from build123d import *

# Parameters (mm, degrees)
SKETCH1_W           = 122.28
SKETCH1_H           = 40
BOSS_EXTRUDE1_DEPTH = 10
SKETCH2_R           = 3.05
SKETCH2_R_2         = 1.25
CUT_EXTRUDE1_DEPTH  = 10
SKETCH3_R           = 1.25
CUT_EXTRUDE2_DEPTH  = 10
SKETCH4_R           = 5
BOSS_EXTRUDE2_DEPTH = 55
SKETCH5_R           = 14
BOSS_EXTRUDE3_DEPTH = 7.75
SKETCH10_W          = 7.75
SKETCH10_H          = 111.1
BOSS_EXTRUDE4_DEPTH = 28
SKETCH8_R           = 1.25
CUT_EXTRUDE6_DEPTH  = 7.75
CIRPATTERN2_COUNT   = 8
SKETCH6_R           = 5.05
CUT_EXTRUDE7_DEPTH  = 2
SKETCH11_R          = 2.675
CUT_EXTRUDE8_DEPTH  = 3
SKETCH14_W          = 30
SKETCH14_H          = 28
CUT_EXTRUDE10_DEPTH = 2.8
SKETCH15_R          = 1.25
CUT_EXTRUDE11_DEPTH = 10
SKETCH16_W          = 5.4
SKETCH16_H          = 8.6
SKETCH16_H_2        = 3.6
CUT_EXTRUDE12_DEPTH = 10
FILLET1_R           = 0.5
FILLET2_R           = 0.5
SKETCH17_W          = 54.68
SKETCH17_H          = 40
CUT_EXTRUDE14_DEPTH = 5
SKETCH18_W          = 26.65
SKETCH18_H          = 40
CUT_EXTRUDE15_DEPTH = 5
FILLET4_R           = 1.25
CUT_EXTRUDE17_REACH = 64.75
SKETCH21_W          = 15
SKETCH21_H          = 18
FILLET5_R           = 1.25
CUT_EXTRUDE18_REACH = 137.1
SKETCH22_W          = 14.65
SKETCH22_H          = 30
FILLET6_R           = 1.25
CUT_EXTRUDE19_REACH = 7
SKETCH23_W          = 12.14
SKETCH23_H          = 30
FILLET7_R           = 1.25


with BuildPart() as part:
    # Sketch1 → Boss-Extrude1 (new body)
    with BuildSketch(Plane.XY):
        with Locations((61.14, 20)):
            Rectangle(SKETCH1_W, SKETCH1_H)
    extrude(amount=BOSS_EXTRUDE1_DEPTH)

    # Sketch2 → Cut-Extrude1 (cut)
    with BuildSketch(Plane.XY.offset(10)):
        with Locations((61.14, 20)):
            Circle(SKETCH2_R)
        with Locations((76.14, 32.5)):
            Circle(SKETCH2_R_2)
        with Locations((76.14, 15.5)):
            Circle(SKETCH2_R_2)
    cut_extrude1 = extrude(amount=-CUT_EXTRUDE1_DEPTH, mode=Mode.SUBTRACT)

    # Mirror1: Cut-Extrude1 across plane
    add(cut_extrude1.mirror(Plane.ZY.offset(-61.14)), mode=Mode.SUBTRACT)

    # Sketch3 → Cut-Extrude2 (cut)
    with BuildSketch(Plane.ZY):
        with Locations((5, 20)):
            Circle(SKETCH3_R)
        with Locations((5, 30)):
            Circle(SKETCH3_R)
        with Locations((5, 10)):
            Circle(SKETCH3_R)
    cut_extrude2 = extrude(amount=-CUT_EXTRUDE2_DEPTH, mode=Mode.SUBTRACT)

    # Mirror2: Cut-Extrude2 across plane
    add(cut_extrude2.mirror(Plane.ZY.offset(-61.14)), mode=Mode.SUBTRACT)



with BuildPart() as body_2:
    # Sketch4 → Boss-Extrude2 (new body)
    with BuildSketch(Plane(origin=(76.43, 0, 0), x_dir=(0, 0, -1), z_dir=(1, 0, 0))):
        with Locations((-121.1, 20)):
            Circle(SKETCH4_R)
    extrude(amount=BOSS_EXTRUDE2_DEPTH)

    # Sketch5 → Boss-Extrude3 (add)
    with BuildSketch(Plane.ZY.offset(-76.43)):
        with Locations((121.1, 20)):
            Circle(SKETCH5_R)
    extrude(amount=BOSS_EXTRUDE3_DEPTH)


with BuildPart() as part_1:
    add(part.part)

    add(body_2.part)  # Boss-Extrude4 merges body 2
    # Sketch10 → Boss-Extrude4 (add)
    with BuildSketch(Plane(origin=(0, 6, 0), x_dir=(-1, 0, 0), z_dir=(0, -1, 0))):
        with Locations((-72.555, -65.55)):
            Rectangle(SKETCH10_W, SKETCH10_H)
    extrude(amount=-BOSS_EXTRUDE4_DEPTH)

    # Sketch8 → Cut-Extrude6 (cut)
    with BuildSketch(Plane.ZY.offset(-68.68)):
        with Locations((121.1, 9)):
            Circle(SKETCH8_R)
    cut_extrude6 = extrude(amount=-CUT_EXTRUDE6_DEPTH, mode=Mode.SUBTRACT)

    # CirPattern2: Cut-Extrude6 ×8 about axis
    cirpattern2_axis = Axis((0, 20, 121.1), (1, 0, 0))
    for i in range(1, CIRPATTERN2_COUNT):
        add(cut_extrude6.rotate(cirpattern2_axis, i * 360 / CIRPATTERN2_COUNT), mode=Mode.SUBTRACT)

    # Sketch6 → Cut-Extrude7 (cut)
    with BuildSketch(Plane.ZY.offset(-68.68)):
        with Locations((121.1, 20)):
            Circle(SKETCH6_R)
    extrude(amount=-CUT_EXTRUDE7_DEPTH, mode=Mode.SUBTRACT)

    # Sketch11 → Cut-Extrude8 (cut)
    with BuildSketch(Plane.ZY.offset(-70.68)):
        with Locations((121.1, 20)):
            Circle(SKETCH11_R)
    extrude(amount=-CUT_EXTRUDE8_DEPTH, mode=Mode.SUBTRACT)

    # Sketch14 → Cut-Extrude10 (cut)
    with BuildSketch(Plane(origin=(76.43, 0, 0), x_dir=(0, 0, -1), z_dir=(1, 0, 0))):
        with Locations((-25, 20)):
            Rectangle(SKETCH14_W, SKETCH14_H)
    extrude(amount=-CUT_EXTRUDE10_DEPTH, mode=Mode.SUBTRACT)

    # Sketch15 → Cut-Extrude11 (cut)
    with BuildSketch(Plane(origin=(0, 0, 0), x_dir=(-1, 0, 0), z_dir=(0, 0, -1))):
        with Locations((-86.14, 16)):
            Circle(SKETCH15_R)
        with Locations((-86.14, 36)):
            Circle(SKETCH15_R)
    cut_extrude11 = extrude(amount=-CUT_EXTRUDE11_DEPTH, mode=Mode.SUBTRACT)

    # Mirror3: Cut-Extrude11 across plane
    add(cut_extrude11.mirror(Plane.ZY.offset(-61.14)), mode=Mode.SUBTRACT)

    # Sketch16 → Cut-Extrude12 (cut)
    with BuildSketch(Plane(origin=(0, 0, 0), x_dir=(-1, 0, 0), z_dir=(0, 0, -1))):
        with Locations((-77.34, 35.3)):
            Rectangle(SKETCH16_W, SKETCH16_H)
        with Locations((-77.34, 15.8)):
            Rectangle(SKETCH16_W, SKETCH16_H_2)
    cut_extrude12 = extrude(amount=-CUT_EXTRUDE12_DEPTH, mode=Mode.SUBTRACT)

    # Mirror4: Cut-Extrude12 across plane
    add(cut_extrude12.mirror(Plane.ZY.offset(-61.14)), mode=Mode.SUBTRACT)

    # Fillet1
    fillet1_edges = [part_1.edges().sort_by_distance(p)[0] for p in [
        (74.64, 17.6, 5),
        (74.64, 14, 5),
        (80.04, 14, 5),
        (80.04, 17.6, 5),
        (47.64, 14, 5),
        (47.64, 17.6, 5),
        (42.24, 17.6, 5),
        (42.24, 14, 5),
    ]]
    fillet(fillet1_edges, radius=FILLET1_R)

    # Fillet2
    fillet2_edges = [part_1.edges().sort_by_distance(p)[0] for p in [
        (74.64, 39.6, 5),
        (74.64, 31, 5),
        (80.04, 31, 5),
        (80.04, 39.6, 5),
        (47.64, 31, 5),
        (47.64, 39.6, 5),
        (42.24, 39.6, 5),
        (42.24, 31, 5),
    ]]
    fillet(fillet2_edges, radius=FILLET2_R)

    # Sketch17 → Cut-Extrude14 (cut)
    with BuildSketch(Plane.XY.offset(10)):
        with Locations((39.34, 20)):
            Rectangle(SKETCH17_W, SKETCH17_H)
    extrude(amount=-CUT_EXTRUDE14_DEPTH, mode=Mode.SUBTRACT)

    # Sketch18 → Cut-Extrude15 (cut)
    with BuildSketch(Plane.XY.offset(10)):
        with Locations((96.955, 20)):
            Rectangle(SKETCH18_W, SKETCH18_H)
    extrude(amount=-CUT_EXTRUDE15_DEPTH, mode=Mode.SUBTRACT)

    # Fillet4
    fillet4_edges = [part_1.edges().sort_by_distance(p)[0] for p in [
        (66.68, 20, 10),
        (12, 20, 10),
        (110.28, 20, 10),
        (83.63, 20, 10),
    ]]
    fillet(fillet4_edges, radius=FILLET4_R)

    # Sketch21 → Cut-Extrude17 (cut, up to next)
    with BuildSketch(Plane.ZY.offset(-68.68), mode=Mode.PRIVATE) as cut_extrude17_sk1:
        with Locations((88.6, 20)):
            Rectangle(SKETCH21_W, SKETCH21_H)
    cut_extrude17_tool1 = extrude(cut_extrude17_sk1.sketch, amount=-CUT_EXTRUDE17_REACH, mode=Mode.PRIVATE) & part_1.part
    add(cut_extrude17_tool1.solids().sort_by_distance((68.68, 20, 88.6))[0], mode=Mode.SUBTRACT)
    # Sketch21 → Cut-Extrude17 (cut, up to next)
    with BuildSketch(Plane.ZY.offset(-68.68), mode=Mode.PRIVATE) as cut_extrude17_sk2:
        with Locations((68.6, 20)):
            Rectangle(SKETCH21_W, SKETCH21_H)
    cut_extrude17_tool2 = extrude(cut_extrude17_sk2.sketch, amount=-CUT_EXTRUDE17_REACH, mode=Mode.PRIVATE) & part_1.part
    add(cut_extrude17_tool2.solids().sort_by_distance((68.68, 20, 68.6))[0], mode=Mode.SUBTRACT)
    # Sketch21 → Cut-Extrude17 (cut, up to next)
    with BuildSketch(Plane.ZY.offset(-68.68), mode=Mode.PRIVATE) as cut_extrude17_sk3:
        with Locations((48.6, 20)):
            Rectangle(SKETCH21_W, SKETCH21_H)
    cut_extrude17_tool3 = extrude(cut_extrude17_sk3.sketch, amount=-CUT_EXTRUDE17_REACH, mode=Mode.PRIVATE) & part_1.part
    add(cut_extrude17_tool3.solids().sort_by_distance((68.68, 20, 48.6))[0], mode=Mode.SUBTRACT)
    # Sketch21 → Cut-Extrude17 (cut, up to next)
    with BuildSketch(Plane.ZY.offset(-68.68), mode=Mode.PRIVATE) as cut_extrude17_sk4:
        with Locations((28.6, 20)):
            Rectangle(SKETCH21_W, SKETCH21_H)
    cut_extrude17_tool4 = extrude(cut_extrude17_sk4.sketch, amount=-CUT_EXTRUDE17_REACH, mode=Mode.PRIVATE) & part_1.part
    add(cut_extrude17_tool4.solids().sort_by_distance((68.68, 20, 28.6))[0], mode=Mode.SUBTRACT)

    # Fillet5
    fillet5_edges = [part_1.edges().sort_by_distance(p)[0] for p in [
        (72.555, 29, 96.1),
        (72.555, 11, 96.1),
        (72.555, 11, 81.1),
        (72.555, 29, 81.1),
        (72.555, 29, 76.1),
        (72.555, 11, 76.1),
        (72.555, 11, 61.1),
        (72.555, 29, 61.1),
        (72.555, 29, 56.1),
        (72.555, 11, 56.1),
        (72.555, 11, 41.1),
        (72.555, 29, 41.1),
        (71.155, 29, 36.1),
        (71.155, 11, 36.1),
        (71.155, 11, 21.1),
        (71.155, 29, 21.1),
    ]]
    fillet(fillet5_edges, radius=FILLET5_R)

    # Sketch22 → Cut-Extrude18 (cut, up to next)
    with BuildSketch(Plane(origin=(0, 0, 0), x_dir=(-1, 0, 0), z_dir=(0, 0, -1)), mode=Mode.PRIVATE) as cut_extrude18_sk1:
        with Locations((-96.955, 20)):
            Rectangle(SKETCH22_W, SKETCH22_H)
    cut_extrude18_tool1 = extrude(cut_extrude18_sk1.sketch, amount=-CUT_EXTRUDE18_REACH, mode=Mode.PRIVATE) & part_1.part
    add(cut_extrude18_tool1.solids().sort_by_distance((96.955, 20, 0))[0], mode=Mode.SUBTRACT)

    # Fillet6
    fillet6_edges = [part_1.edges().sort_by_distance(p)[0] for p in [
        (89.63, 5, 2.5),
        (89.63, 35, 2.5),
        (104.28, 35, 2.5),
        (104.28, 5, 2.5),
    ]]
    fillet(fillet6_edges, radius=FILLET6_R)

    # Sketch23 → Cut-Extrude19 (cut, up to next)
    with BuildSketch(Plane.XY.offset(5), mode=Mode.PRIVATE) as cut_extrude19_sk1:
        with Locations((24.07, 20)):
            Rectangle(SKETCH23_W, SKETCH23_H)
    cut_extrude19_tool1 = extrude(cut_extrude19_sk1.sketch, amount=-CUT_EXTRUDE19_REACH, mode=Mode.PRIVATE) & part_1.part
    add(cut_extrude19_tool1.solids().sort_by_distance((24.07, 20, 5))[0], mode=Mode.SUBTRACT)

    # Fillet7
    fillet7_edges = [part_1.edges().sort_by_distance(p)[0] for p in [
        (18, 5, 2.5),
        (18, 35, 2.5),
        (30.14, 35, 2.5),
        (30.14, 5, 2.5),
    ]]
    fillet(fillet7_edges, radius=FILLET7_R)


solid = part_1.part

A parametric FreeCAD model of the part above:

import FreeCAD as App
import Part
import Sketcher

V = App.Vector
Q = App.Units.Quantity


def edges_at(feature, points):
    """Names of the edges that pass closest to the given points."""
    edges = feature.Shape.Edges
    near = lambda p: min(range(len(edges)), key=lambda i: edges[i].distToShape(Part.Vertex(*p))[0])
    return sorted({f"Edge{near(p) + 1}" for p in points})

doc = App.newDocument("Part")
body = doc.addObject("PartDesign::Body", "Body")

sketch1 = body.newObject("Sketcher::SketchObject", "Sketch")
sketch1.AttachmentSupport = (doc.getObject("XY_Plane"), [""])
sketch1.MapMode = "FlatFace"
sketch1.addGeometry(Part.LineSegment(V(0, 40, 0), V(0, 0, 0)), False)
sketch1.addGeometry(Part.LineSegment(V(0, 0, 0), V(122, 0, 0)), False)
sketch1.addGeometry(Part.LineSegment(V(122, 0, 0), V(122, 40, 0)), False)
sketch1.addGeometry(Part.LineSegment(V(122, 40, 0), V(0, 40, 0)), False)
sketch1.addConstraint(Sketcher.Constraint("Coincident", 0, 2, 1, 1))
sketch1.addConstraint(Sketcher.Constraint("Coincident", 1, 2, 2, 1))
sketch1.addConstraint(Sketcher.Constraint("Coincident", 2, 2, 3, 1))
sketch1.addConstraint(Sketcher.Constraint("Coincident", 3, 2, 0, 1))
sketch1.addConstraint(Sketcher.Constraint("Vertical", 0))
sketch1.addConstraint(Sketcher.Constraint("Horizontal", 1))
sketch1.addConstraint(Sketcher.Constraint("Vertical", 2))
sketch1.addConstraint(Sketcher.Constraint("Horizontal", 3))
sketch1.addConstraint(Sketcher.Constraint("Coincident", 0, 2, -1, 1))
sketch1.addConstraint(Sketcher.Constraint("DistanceY", 0, 2, 0, 1, Q("40 mm")))
sketch1.addConstraint(Sketcher.Constraint("DistanceX", 1, 1, 1, 2, Q("122.28 mm")))
pad1 = body.newObject("PartDesign::Pad", "Pad")
pad1.Profile = sketch1
pad1.Length = 10

sketch2 = body.newObject("Sketcher::SketchObject", "Sketch001")
sketch2.AttachmentSupport = (doc.getObject("XY_Plane"), [""])
sketch2.MapMode = "FlatFace"
sketch2.AttachmentOffset = App.Placement(V(0, 0, 10), App.Rotation())
sketch2.addGeometry(Part.Circle(V(61.1, 20, 0), V(0, 0, 1), 3), False)
sketch2.addGeometry(Part.Circle(V(76.1, 32.5, 0), V(0, 0, 1), 1.2), False)
sketch2.addGeometry(Part.Circle(V(76.1, 15.5, 0), V(0, 0, 1), 1.2), False)
sketch2.addConstraint(Sketcher.Constraint("Equal", 1, 2))
sketch2.addConstraint(Sketcher.Constraint("Vertical", 1, 3, 2, 3))
sketch2.addConstraint(Sketcher.Constraint("Diameter", 0, Q("6.1 mm")))
sketch2.addConstraint(Sketcher.Constraint("Diameter", 1, Q("2.5 mm")))
sketch2.addConstraint(Sketcher.Constraint("DistanceY", -1, 1, 0, 3, Q("20 mm")))
sketch2.addConstraint(Sketcher.Constraint("DistanceX", 0, 3, 1, 3, Q("15 mm")))
sketch2.addConstraint(Sketcher.Constraint("DistanceY", 2, 3, 1, 3, Q("17 mm")))
sketch2.addConstraint(Sketcher.Constraint("DistanceY", -1, 1, 1, 3, Q("32.5 mm")))
sketch2.addConstraint(Sketcher.Constraint("DistanceX", -1, 1, 0, 3, Q("61.14 mm")))
pocket1 = body.newObject("PartDesign::Pocket", "Pocket")
pocket1.Profile = sketch2
pocket1.Length = 10
doc.recompute()

datumplane = body.newObject("PartDesign::Plane", "DatumPlane")
datumplane.AttachmentSupport = (doc.getObject("YZ_Plane"), [""])
datumplane.MapMode = "FlatFace"
datumplane.AttachmentOffset = App.Placement(V(0, 0, 61.14), App.Rotation())
mirrored = body.newObject("PartDesign::Mirrored", "Mirrored")
mirrored.Originals = [pocket1]
mirrored.MirrorPlane = (datumplane, [""])
body.Tip = mirrored

sketch3 = body.newObject("Sketcher::SketchObject", "Sketch002")
sketch3.AttachmentSupport = (doc.getObject("YZ_Plane"), [""])
sketch3.MapMode = "FlatFace"
sketch3.addGeometry(Part.Circle(V(20, 5, 0), V(0, 0, 1), 1.2), False)
sketch3.addGeometry(Part.Circle(V(30, 5, 0), V(0, 0, 1), 1.2), False)
sketch3.addGeometry(Part.Circle(V(10, 5, 0), V(0, 0, 1), 1.2), False)
sketch3.addConstraint(Sketcher.Constraint("Equal", 0, 1))
sketch3.addConstraint(Sketcher.Constraint("Equal", 1, 2))
sketch3.addConstraint(Sketcher.Constraint("Horizontal", 0, 3, 1, 3))
sketch3.addConstraint(Sketcher.Constraint("Horizontal", 1, 3, 2, 3))
sketch3.addConstraint(Sketcher.Constraint("Diameter", 0, Q("2.5 mm")))
sketch3.addConstraint(Sketcher.Constraint("DistanceX", -1, 1, 0, 3, Q("20 mm")))
sketch3.addConstraint(Sketcher.Constraint("DistanceY", -1, 1, 0, 3, Q("5 mm")))
sketch3.addConstraint(Sketcher.Constraint("DistanceX", -1, 1, 1, 3, Q("30 mm")))
sketch3.addConstraint(Sketcher.Constraint("DistanceX", -1, 1, 2, 3, Q("10 mm")))
pocket2 = body.newObject("PartDesign::Pocket", "Pocket001")
pocket2.Profile = sketch3
pocket2.Length = 10
pocket2.Reversed = True
doc.recompute()

datumplane2 = body.newObject("PartDesign::Plane", "DatumPlane001")
datumplane2.AttachmentSupport = (doc.getObject("YZ_Plane"), [""])
datumplane2.MapMode = "FlatFace"
datumplane2.AttachmentOffset = App.Placement(V(0, 0, 61.14), App.Rotation())
mirrored2 = body.newObject("PartDesign::Mirrored", "Mirrored001")
mirrored2.Originals = [pocket2]
mirrored2.MirrorPlane = (datumplane2, [""])
body.Tip = mirrored2
body2 = doc.addObject("PartDesign::Body", "Body001")

sketch4 = body2.newObject("Sketcher::SketchObject", "Sketch003")
sketch4.AttachmentSupport = (doc.getObject("YZ_Plane001"), [""])
sketch4.MapMode = "FlatFace"
sketch4.AttachmentOffset = App.Placement(V(0, 0, 76.43), App.Rotation())
sketch4.addGeometry(Part.Circle(V(20, 121, 0), V(0, 0, 1), 5), False)
sketch4.addConstraint(Sketcher.Constraint("Diameter", 0, Q("10 mm")))
sketch4.addConstraint(Sketcher.Constraint("DistanceX", -1, 1, 0, 3, Q("20 mm")))
sketch4.addConstraint(Sketcher.Constraint("DistanceY", -1, 1, 0, 3, Q("121.1 mm")))
pad2 = body2.newObject("PartDesign::Pad", "Pad001")
pad2.Profile = sketch4
pad2.Length = 55

sketch5 = body2.newObject("Sketcher::SketchObject", "Sketch004")
sketch5.AttachmentSupport = (doc.getObject("YZ_Plane001"), [""])
sketch5.MapMode = "FlatFace"
sketch5.AttachmentOffset = App.Placement(V(0, 0, 76.43), App.Rotation())
sketch5.addGeometry(Part.Circle(V(20, 121, 0), V(0, 0, 1), 14), False)
sketch5.addConstraint(Sketcher.Constraint("Diameter", 0, Q("28 mm")))
sketch5.addConstraint(Sketcher.Constraint("DistanceX", -1, 1, 0, 3, Q("20 mm")))
sketch5.addConstraint(Sketcher.Constraint("DistanceY", -1, 1, 0, 3, Q("121.1 mm")))
pad3 = body2.newObject("PartDesign::Pad", "Pad002")
pad3.Profile = sketch5
pad3.Length = 7.75
pad3.Reversed = True
body.AllowCompound = True
doc.recompute()

boolean = body.newObject("PartDesign::Boolean", "Boolean")
boolean.Type = "Fuse"
boolean.addObjects([body2])

sketch6 = body.newObject("Sketcher::SketchObject", "Sketch005")
sketch6.AttachmentSupport = (doc.getObject("XZ_Plane"), [""])
sketch6.MapMode = "FlatFace"
sketch6.AttachmentOffset = App.Placement(V(0, 0, -6), App.Rotation())
sketch6.addGeometry(Part.LineSegment(V(76, 10, 0), V(76, 121, 0)), False)
sketch6.addGeometry(Part.LineSegment(V(76, 121, 0), V(69, 121, 0)), False)
sketch6.addGeometry(Part.LineSegment(V(69, 121, 0), V(69, 10, 0)), False)
sketch6.addGeometry(Part.LineSegment(V(69, 10, 0), V(76, 10, 0)), False)
sketch6.addConstraint(Sketcher.Constraint("Coincident", 0, 2, 1, 1))
sketch6.addConstraint(Sketcher.Constraint("Coincident", 1, 2, 2, 1))
sketch6.addConstraint(Sketcher.Constraint("Coincident", 2, 2, 3, 1))
sketch6.addConstraint(Sketcher.Constraint("Coincident", 3, 2, 0, 1))
sketch6.addConstraint(Sketcher.Constraint("Vertical", 0))
sketch6.addConstraint(Sketcher.Constraint("Horizontal", 1))
sketch6.addConstraint(Sketcher.Constraint("Vertical", 2))
sketch6.addConstraint(Sketcher.Constraint("Horizontal", 3))
sketch6.addConstraint(Sketcher.Constraint("DistanceY", 0, 1, 0, 2, Q("111.1 mm")))
sketch6.addConstraint(Sketcher.Constraint("DistanceY", -1, 1, 2, 2, Q("10 mm")))
sketch6.addConstraint(Sketcher.Constraint("DistanceX", 1, 2, 1, 1, Q("7.75 mm")))
sketch6.addConstraint(Sketcher.Constraint("DistanceX", -1, 1, 0, 2, Q("76.43 mm")))
pad4 = body.newObject("PartDesign::Pad", "Pad003")
pad4.Profile = sketch6
pad4.Length = 28
pad4.Reversed = True

sketch7 = body.newObject("Sketcher::SketchObject", "Sketch006")
sketch7.AttachmentSupport = (doc.getObject("YZ_Plane"), [""])
sketch7.MapMode = "FlatFace"
sketch7.AttachmentOffset = App.Placement(V(0, 0, 68.68), App.Rotation())
sketch7.addGeometry(Part.Circle(V(9, 121.1, 0), V(0, 0, 1), 1.2), False)
sketch7.addConstraint(Sketcher.Constraint("Diameter", 0, Q("2.5 mm")))
sketch7.addConstraint(Sketcher.Constraint("DistanceX", -1, 1, 0, 3, Q("9 mm")))
sketch7.addConstraint(Sketcher.Constraint("DistanceY", -1, 1, 0, 3, Q("121.1 mm")))
pocket3 = body.newObject("PartDesign::Pocket", "Pocket002")
pocket3.Profile = sketch7
pocket3.Length = 7.75
pocket3.Reversed = True
doc.recompute()

datumline = body.newObject("PartDesign::Line", "DatumLine")
datumline.Placement = App.Placement(V(0, 20, 121.1), App.Rotation(V(0, 0, 1), V(1, 0, 0)))
polarpattern = body.newObject("PartDesign::PolarPattern", "PolarPattern")
polarpattern.Originals = [pocket3]
polarpattern.Axis = (datumline, [""])
polarpattern.Angle = 360
polarpattern.Occurrences = 8
body.Tip = polarpattern

sketch8 = body.newObject("Sketcher::SketchObject", "Sketch007")
sketch8.AttachmentSupport = (doc.getObject("YZ_Plane"), [""])
sketch8.MapMode = "FlatFace"
sketch8.AttachmentOffset = App.Placement(V(0, 0, 68.68), App.Rotation())
sketch8.addGeometry(Part.Circle(V(20, 121, 0), V(0, 0, 1), 5), False)
sketch8.addConstraint(Sketcher.Constraint("Diameter", 0, Q("10.1 mm")))
sketch8.addConstraint(Sketcher.Constraint("DistanceX", -1, 1, 0, 3, Q("20 mm")))
sketch8.addConstraint(Sketcher.Constraint("DistanceY", -1, 1, 0, 3, Q("121.1 mm")))
pocket4 = body.newObject("PartDesign::Pocket", "Pocket003")
pocket4.Profile = sketch8
pocket4.Length = 2
pocket4.Reversed = True

sketch9 = body.newObject("Sketcher::SketchObject", "Sketch008")
sketch9.AttachmentSupport = (doc.getObject("YZ_Plane"), [""])
sketch9.MapMode = "FlatFace"
sketch9.AttachmentOffset = App.Placement(V(0, 0, 70.68), App.Rotation())
sketch9.addGeometry(Part.Circle(V(20, 121.1, 0), V(0, 0, 1), 2.7), False)
sketch9.addConstraint(Sketcher.Constraint("Diameter", 0, Q("5.35 mm")))
sketch9.addConstraint(Sketcher.Constraint("DistanceX", -1, 1, 0, 3, Q("20 mm")))
sketch9.addConstraint(Sketcher.Constraint("DistanceY", -1, 1, 0, 3, Q("121.1 mm")))
pocket5 = body.newObject("PartDesign::Pocket", "Pocket004")
pocket5.Profile = sketch9
pocket5.Length = 3
pocket5.Reversed = True

sketch10 = body.newObject("Sketcher::SketchObject", "Sketch009")
sketch10.AttachmentSupport = (doc.getObject("YZ_Plane"), [""])
sketch10.MapMode = "FlatFace"
sketch10.AttachmentOffset = App.Placement(V(0, 0, 76.43), App.Rotation())
sketch10.addGeometry(Part.LineSegment(V(34, 40, 0), V(6, 40, 0)), False)
sketch10.addGeometry(Part.LineSegment(V(6, 40, 0), V(6, 10, 0)), False)
sketch10.addGeometry(Part.LineSegment(V(6, 10, 0), V(34, 10, 0)), False)
sketch10.addGeometry(Part.LineSegment(V(34, 10, 0), V(34, 40, 0)), False)
sketch10.addConstraint(Sketcher.Constraint("Coincident", 0, 2, 1, 1))
sketch10.addConstraint(Sketcher.Constraint("Coincident", 1, 2, 2, 1))
sketch10.addConstraint(Sketcher.Constraint("Coincident", 2, 2, 3, 1))
sketch10.addConstraint(Sketcher.Constraint("Coincident", 3, 2, 0, 1))
sketch10.addConstraint(Sketcher.Constraint("Horizontal", 0))
sketch10.addConstraint(Sketcher.Constraint("Vertical", 1))
sketch10.addConstraint(Sketcher.Constraint("Horizontal", 2))
sketch10.addConstraint(Sketcher.Constraint("Vertical", 3))
sketch10.addConstraint(Sketcher.Constraint("DistanceX", 0, 2, 0, 1, Q("28 mm")))
sketch10.addConstraint(Sketcher.Constraint("DistanceY", 1, 2, 1, 1, Q("30 mm")))
sketch10.addConstraint(Sketcher.Constraint("DistanceX", -1, 1, 0, 2, Q("6 mm")))
sketch10.addConstraint(Sketcher.Constraint("DistanceY", -1, 1, 0, 2, Q("40 mm")))
pocket6 = body.newObject("PartDesign::Pocket", "Pocket005")
pocket6.Profile = sketch10
pocket6.Length = 2.8

sketch11 = body.newObject("Sketcher::SketchObject", "Sketch010")
sketch11.AttachmentSupport = (doc.getObject("XY_Plane"), [""])
sketch11.MapMode = "FlatFace"
sketch11.addGeometry(Part.Circle(V(86.1, 16, 0), V(0, 0, 1), 1.2), False)
sketch11.addGeometry(Part.Circle(V(86.1, 36, 0), V(0, 0, 1), 1.2), False)
sketch11.addConstraint(Sketcher.Constraint("Equal", 0, 1))
sketch11.addConstraint(Sketcher.Constraint("Vertical", 0, 3, 1, 3))
sketch11.addConstraint(Sketcher.Constraint("Diameter", 0, Q("2.5 mm")))
sketch11.addConstraint(Sketcher.Constraint("DistanceY", -1, 1, 0, 3, Q("16 mm")))
sketch11.addConstraint(Sketcher.Constraint("DistanceY", -1, 1, 1, 3, Q("36 mm")))
sketch11.addConstraint(Sketcher.Constraint("DistanceX", -1, 1, 0, 3, Q("86.14 mm")))
pocket7 = body.newObject("PartDesign::Pocket", "Pocket006")
pocket7.Profile = sketch11
pocket7.Length = 10
pocket7.Reversed = True
doc.recompute()

datumplane3 = body.newObject("PartDesign::Plane", "DatumPlane002")
datumplane3.AttachmentSupport = (doc.getObject("YZ_Plane"), [""])
datumplane3.MapMode = "FlatFace"
datumplane3.AttachmentOffset = App.Placement(V(0, 0, 61.14), App.Rotation())
mirrored3 = body.newObject("PartDesign::Mirrored", "Mirrored002")
mirrored3.Originals = [pocket7]
mirrored3.MirrorPlane = (datumplane3, [""])
body.Tip = mirrored3

sketch12 = body.newObject("Sketcher::SketchObject", "Sketch011")
sketch12.AttachmentSupport = (doc.getObject("XY_Plane"), [""])
sketch12.MapMode = "FlatFace"
sketch12.addGeometry(Part.LineSegment(V(80, 39.6, 0), V(80, 31, 0)), False)
sketch12.addGeometry(Part.LineSegment(V(80, 31, 0), V(74.6, 31, 0)), False)
sketch12.addGeometry(Part.LineSegment(V(74.6, 31, 0), V(74.6, 39.6, 0)), False)
sketch12.addGeometry(Part.LineSegment(V(74.6, 39.6, 0), V(80, 39.6, 0)), False)
sketch12.addGeometry(Part.LineSegment(V(80, 17.6, 0), V(80, 14, 0)), False)
sketch12.addGeometry(Part.LineSegment(V(80, 14, 0), V(74.6, 14, 0)), False)
sketch12.addGeometry(Part.LineSegment(V(74.6, 14, 0), V(74.6, 17.6, 0)), False)
sketch12.addGeometry(Part.LineSegment(V(74.6, 17.6, 0), V(80, 17.6, 0)), False)
sketch12.addConstraint(Sketcher.Constraint("Coincident", 0, 2, 1, 1))
sketch12.addConstraint(Sketcher.Constraint("Coincident", 1, 2, 2, 1))
sketch12.addConstraint(Sketcher.Constraint("Coincident", 2, 2, 3, 1))
sketch12.addConstraint(Sketcher.Constraint("Coincident", 3, 2, 0, 1))
sketch12.addConstraint(Sketcher.Constraint("Coincident", 4, 2, 5, 1))
sketch12.addConstraint(Sketcher.Constraint("Coincident", 5, 2, 6, 1))
sketch12.addConstraint(Sketcher.Constraint("Coincident", 6, 2, 7, 1))
sketch12.addConstraint(Sketcher.Constraint("Coincident", 7, 2, 4, 1))
sketch12.addConstraint(Sketcher.Constraint("Vertical", 0))
sketch12.addConstraint(Sketcher.Constraint("Horizontal", 1))
sketch12.addConstraint(Sketcher.Constraint("Vertical", 2))
sketch12.addConstraint(Sketcher.Constraint("Horizontal", 3))
sketch12.addConstraint(Sketcher.Constraint("Vertical", 4))
sketch12.addConstraint(Sketcher.Constraint("Horizontal", 5))
sketch12.addConstraint(Sketcher.Constraint("Vertical", 6))
sketch12.addConstraint(Sketcher.Constraint("Horizontal", 7))
sketch12.addConstraint(Sketcher.Constraint("Vertical", 3, 2, 4, 2))
sketch12.addConstraint(Sketcher.Constraint("Vertical", 2, 2, 5, 2))
sketch12.addConstraint(Sketcher.Constraint("DistanceX", 1, 2, 1, 1, Q("5.4 mm")))
sketch12.addConstraint(Sketcher.Constraint("DistanceY", 0, 2, 0, 1, Q("8.6 mm")))
sketch12.addConstraint(Sketcher.Constraint("DistanceY", 4, 2, 4, 1, Q("3.6 mm")))
sketch12.addConstraint(Sketcher.Constraint("DistanceY", -1, 1, 0, 2, Q("31 mm")))
sketch12.addConstraint(Sketcher.Constraint("DistanceY", -1, 1, 4, 2, Q("14 mm")))
sketch12.addConstraint(Sketcher.Constraint("DistanceX", -1, 1, 0, 2, Q("80.04 mm")))
pocket8 = body.newObject("PartDesign::Pocket", "Pocket007")
pocket8.Profile = sketch12
pocket8.Length = 10
pocket8.Reversed = True
doc.recompute()

datumplane4 = body.newObject("PartDesign::Plane", "DatumPlane003")
datumplane4.AttachmentSupport = (doc.getObject("YZ_Plane"), [""])
datumplane4.MapMode = "FlatFace"
datumplane4.AttachmentOffset = App.Placement(V(0, 0, 61.14), App.Rotation())
mirrored4 = body.newObject("PartDesign::Mirrored", "Mirrored003")
mirrored4.Originals = [pocket8]
mirrored4.MirrorPlane = (datumplane4, [""])
body.Tip = mirrored4
doc.recompute()

fillet = body.newObject("PartDesign::Fillet", "Fillet")
fillet.Base = (mirrored4, edges_at(mirrored4, [
    (74.64, 17.6, 5),
    (74.64, 14, 5),
    (80.04, 14, 5),
    (80.04, 17.6, 5),
    (47.64, 14, 5),
    (47.64, 17.6, 5),
    (42.24, 17.6, 5),
    (42.24, 14, 5),
]))
fillet.Radius = 0.5
doc.recompute()

fillet2 = body.newObject("PartDesign::Fillet", "Fillet001")
fillet2.Base = (fillet, edges_at(fillet, [
    (74.64, 39.6, 5),
    (74.64, 31, 5),
    (80.04, 31, 5),
    (80.04, 39.6, 5),
    (47.64, 31, 5),
    (47.64, 39.6, 5),
    (42.24, 39.6, 5),
    (42.24, 31, 5),
]))
fillet2.Radius = 0.5

sketch13 = body.newObject("Sketcher::SketchObject", "Sketch012")
sketch13.AttachmentSupport = (doc.getObject("XY_Plane"), [""])
sketch13.MapMode = "FlatFace"
sketch13.AttachmentOffset = App.Placement(V(0, 0, 10), App.Rotation())
sketch13.addGeometry(Part.LineSegment(V(12, 40, 0), V(12, 0, 0)), False)
sketch13.addGeometry(Part.LineSegment(V(12, 0, 0), V(67, 0, 0)), False)
sketch13.addGeometry(Part.LineSegment(V(67, 0, 0), V(67, 40, 0)), False)
sketch13.addGeometry(Part.LineSegment(V(67, 40, 0), V(12, 40, 0)), False)
sketch13.addConstraint(Sketcher.Constraint("Coincident", 0, 2, 1, 1))
sketch13.addConstraint(Sketcher.Constraint("Coincident", 1, 2, 2, 1))
sketch13.addConstraint(Sketcher.Constraint("Coincident", 2, 2, 3, 1))
sketch13.addConstraint(Sketcher.Constraint("Coincident", 3, 2, 0, 1))
sketch13.addConstraint(Sketcher.Constraint("Vertical", 0))
sketch13.addConstraint(Sketcher.Constraint("Horizontal", 1))
sketch13.addConstraint(Sketcher.Constraint("Vertical", 2))
sketch13.addConstraint(Sketcher.Constraint("Horizontal", 3))
sketch13.addConstraint(Sketcher.Constraint("PointOnObject", 0, 2, -1))
sketch13.addConstraint(Sketcher.Constraint("DistanceY", 0, 2, 0, 1, Q("40 mm")))
sketch13.addConstraint(Sketcher.Constraint("DistanceX", -1, 1, 0, 2, Q("12 mm")))
sketch13.addConstraint(Sketcher.Constraint("DistanceX", 1, 1, 1, 2, Q("54.68 mm")))
pocket9 = body.newObject("PartDesign::Pocket", "Pocket008")
pocket9.Profile = sketch13
pocket9.Length = 5

sketch14 = body.newObject("Sketcher::SketchObject", "Sketch013")
sketch14.AttachmentSupport = (doc.getObject("XY_Plane"), [""])
sketch14.MapMode = "FlatFace"
sketch14.AttachmentOffset = App.Placement(V(0, 0, 10), App.Rotation())
sketch14.addGeometry(Part.LineSegment(V(84, 40, 0), V(84, 0, 0)), False)
sketch14.addGeometry(Part.LineSegment(V(84, 0, 0), V(110, 0, 0)), False)
sketch14.addGeometry(Part.LineSegment(V(110, 0, 0), V(110, 40, 0)), False)
sketch14.addGeometry(Part.LineSegment(V(110, 40, 0), V(84, 40, 0)), False)
sketch14.addConstraint(Sketcher.Constraint("Coincident", 0, 2, 1, 1))
sketch14.addConstraint(Sketcher.Constraint("Coincident", 1, 2, 2, 1))
sketch14.addConstraint(Sketcher.Constraint("Coincident", 2, 2, 3, 1))
sketch14.addConstraint(Sketcher.Constraint("Coincident", 3, 2, 0, 1))
sketch14.addConstraint(Sketcher.Constraint("Vertical", 0))
sketch14.addConstraint(Sketcher.Constraint("Horizontal", 1))
sketch14.addConstraint(Sketcher.Constraint("Vertical", 2))
sketch14.addConstraint(Sketcher.Constraint("Horizontal", 3))
sketch14.addConstraint(Sketcher.Constraint("PointOnObject", 0, 2, -1))
sketch14.addConstraint(Sketcher.Constraint("DistanceY", 0, 2, 0, 1, Q("40 mm")))
sketch14.addConstraint(Sketcher.Constraint("DistanceX", 1, 1, 1, 2, Q("26.65 mm")))
sketch14.addConstraint(Sketcher.Constraint("DistanceX", -1, 1, 0, 2, Q("83.63 mm")))
pocket10 = body.newObject("PartDesign::Pocket", "Pocket009")
pocket10.Profile = sketch14
pocket10.Length = 5
doc.recompute()

fillet3 = body.newObject("PartDesign::Fillet", "Fillet002")
fillet3.Base = (pocket10, edges_at(pocket10, [
    (66.68, 20, 10),
    (12, 20, 10),
    (110.28, 20, 10),
    (83.63, 20, 10),
]))
fillet3.Radius = 1.25

sketch15 = body.newObject("Sketcher::SketchObject", "Sketch014")
sketch15.AttachmentSupport = (doc.getObject("YZ_Plane"), [""])
sketch15.MapMode = "FlatFace"
sketch15.AttachmentOffset = App.Placement(V(0, 0, 68.68), App.Rotation())
sketch15.addGeometry(Part.LineSegment(V(29, 81, 0), V(11, 81, 0)), False)
sketch15.addGeometry(Part.LineSegment(V(11, 81, 0), V(11, 96, 0)), False)
sketch15.addGeometry(Part.LineSegment(V(11, 96, 0), V(29, 96, 0)), False)
sketch15.addGeometry(Part.LineSegment(V(29, 96, 0), V(29, 81, 0)), False)
sketch15.addConstraint(Sketcher.Constraint("Coincident", 0, 2, 1, 1))
sketch15.addConstraint(Sketcher.Constraint("Coincident", 1, 2, 2, 1))
sketch15.addConstraint(Sketcher.Constraint("Coincident", 2, 2, 3, 1))
sketch15.addConstraint(Sketcher.Constraint("Coincident", 3, 2, 0, 1))
sketch15.addConstraint(Sketcher.Constraint("Horizontal", 0))
sketch15.addConstraint(Sketcher.Constraint("Vertical", 1))
sketch15.addConstraint(Sketcher.Constraint("Horizontal", 2))
sketch15.addConstraint(Sketcher.Constraint("Vertical", 3))
sketch15.addConstraint(Sketcher.Constraint("DistanceX", 0, 2, 0, 1, Q("18 mm")))
sketch15.addConstraint(Sketcher.Constraint("DistanceY", 1, 1, 1, 2, Q("15 mm")))
sketch15.addConstraint(Sketcher.Constraint("DistanceX", -1, 1, 0, 2, Q("11 mm")))
sketch15.addConstraint(Sketcher.Constraint("DistanceY", -1, 1, 0, 2, Q("81.1 mm")))
pocket11 = body.newObject("PartDesign::Pocket", "Pocket010")
pocket11.Profile = sketch15
pocket11.Type = "UpToFirst"
pocket11.Reversed = True

sketch16 = body.newObject("Sketcher::SketchObject", "Sketch015")
sketch16.AttachmentSupport = (doc.getObject("YZ_Plane"), [""])
sketch16.MapMode = "FlatFace"
sketch16.AttachmentOffset = App.Placement(V(0, 0, 68.68), App.Rotation())
sketch16.addGeometry(Part.LineSegment(V(29, 61, 0), V(11, 61, 0)), False)
sketch16.addGeometry(Part.LineSegment(V(11, 61, 0), V(11, 76, 0)), False)
sketch16.addGeometry(Part.LineSegment(V(11, 76, 0), V(29, 76, 0)), False)
sketch16.addGeometry(Part.LineSegment(V(29, 76, 0), V(29, 61, 0)), False)
sketch16.addConstraint(Sketcher.Constraint("Coincident", 0, 2, 1, 1))
sketch16.addConstraint(Sketcher.Constraint("Coincident", 1, 2, 2, 1))
sketch16.addConstraint(Sketcher.Constraint("Coincident", 2, 2, 3, 1))
sketch16.addConstraint(Sketcher.Constraint("Coincident", 3, 2, 0, 1))
sketch16.addConstraint(Sketcher.Constraint("Horizontal", 0))
sketch16.addConstraint(Sketcher.Constraint("Vertical", 1))
sketch16.addConstraint(Sketcher.Constraint("Horizontal", 2))
sketch16.addConstraint(Sketcher.Constraint("Vertical", 3))
sketch16.addConstraint(Sketcher.Constraint("DistanceX", 0, 2, 0, 1, Q("18 mm")))
sketch16.addConstraint(Sketcher.Constraint("DistanceY", 1, 1, 1, 2, Q("15 mm")))
sketch16.addConstraint(Sketcher.Constraint("DistanceX", -1, 1, 0, 2, Q("11 mm")))
sketch16.addConstraint(Sketcher.Constraint("DistanceY", -1, 1, 0, 2, Q("61.1 mm")))
pocket12 = body.newObject("PartDesign::Pocket", "Pocket011")
pocket12.Profile = sketch16
pocket12.Type = "UpToFirst"
pocket12.Reversed = True

sketch17 = body.newObject("Sketcher::SketchObject", "Sketch016")
sketch17.AttachmentSupport = (doc.getObject("YZ_Plane"), [""])
sketch17.MapMode = "FlatFace"
sketch17.AttachmentOffset = App.Placement(V(0, 0, 68.68), App.Rotation())
sketch17.addGeometry(Part.LineSegment(V(29, 41, 0), V(11, 41, 0)), False)
sketch17.addGeometry(Part.LineSegment(V(11, 41, 0), V(11, 56, 0)), False)
sketch17.addGeometry(Part.LineSegment(V(11, 56, 0), V(29, 56, 0)), False)
sketch17.addGeometry(Part.LineSegment(V(29, 56, 0), V(29, 41, 0)), False)
sketch17.addConstraint(Sketcher.Constraint("Coincident", 0, 2, 1, 1))
sketch17.addConstraint(Sketcher.Constraint("Coincident", 1, 2, 2, 1))
sketch17.addConstraint(Sketcher.Constraint("Coincident", 2, 2, 3, 1))
sketch17.addConstraint(Sketcher.Constraint("Coincident", 3, 2, 0, 1))
sketch17.addConstraint(Sketcher.Constraint("Horizontal", 0))
sketch17.addConstraint(Sketcher.Constraint("Vertical", 1))
sketch17.addConstraint(Sketcher.Constraint("Horizontal", 2))
sketch17.addConstraint(Sketcher.Constraint("Vertical", 3))
sketch17.addConstraint(Sketcher.Constraint("DistanceX", 0, 2, 0, 1, Q("18 mm")))
sketch17.addConstraint(Sketcher.Constraint("DistanceY", 1, 1, 1, 2, Q("15 mm")))
sketch17.addConstraint(Sketcher.Constraint("DistanceX", -1, 1, 0, 2, Q("11 mm")))
sketch17.addConstraint(Sketcher.Constraint("DistanceY", -1, 1, 0, 2, Q("41.1 mm")))
pocket13 = body.newObject("PartDesign::Pocket", "Pocket012")
pocket13.Profile = sketch17
pocket13.Type = "UpToFirst"
pocket13.Reversed = True

sketch18 = body.newObject("Sketcher::SketchObject", "Sketch017")
sketch18.AttachmentSupport = (doc.getObject("YZ_Plane"), [""])
sketch18.MapMode = "FlatFace"
sketch18.AttachmentOffset = App.Placement(V(0, 0, 68.68), App.Rotation())
sketch18.addGeometry(Part.LineSegment(V(29, 21, 0), V(11, 21, 0)), False)
sketch18.addGeometry(Part.LineSegment(V(11, 21, 0), V(11, 36, 0)), False)
sketch18.addGeometry(Part.LineSegment(V(11, 36, 0), V(29, 36, 0)), False)
sketch18.addGeometry(Part.LineSegment(V(29, 36, 0), V(29, 21, 0)), False)
sketch18.addConstraint(Sketcher.Constraint("Coincident", 0, 2, 1, 1))
sketch18.addConstraint(Sketcher.Constraint("Coincident", 1, 2, 2, 1))
sketch18.addConstraint(Sketcher.Constraint("Coincident", 2, 2, 3, 1))
sketch18.addConstraint(Sketcher.Constraint("Coincident", 3, 2, 0, 1))
sketch18.addConstraint(Sketcher.Constraint("Horizontal", 0))
sketch18.addConstraint(Sketcher.Constraint("Vertical", 1))
sketch18.addConstraint(Sketcher.Constraint("Horizontal", 2))
sketch18.addConstraint(Sketcher.Constraint("Vertical", 3))
sketch18.addConstraint(Sketcher.Constraint("DistanceX", 0, 2, 0, 1, Q("18 mm")))
sketch18.addConstraint(Sketcher.Constraint("DistanceY", 1, 1, 1, 2, Q("15 mm")))
sketch18.addConstraint(Sketcher.Constraint("DistanceX", -1, 1, 0, 2, Q("11 mm")))
sketch18.addConstraint(Sketcher.Constraint("DistanceY", -1, 1, 0, 2, Q("21.1 mm")))
pocket14 = body.newObject("PartDesign::Pocket", "Pocket013")
pocket14.Profile = sketch18
pocket14.Type = "UpToFirst"
pocket14.Reversed = True
doc.recompute()

fillet4 = body.newObject("PartDesign::Fillet", "Fillet003")
fillet4.Base = (pocket14, edges_at(pocket14, [
    (72.555, 29, 96.1),
    (72.555, 11, 96.1),
    (72.555, 11, 81.1),
    (72.555, 29, 81.1),
    (72.555, 29, 76.1),
    (72.555, 11, 76.1),
    (72.555, 11, 61.1),
    (72.555, 29, 61.1),
    (72.555, 29, 56.1),
    (72.555, 11, 56.1),
    (72.555, 11, 41.1),
    (72.555, 29, 41.1),
    (71.155, 29, 36.1),
    (71.155, 11, 36.1),
    (71.155, 11, 21.1),
    (71.155, 29, 21.1),
]))
fillet4.Radius = 1.25

sketch19 = body.newObject("Sketcher::SketchObject", "Sketch018")
sketch19.AttachmentSupport = (doc.getObject("XY_Plane"), [""])
sketch19.MapMode = "FlatFace"
sketch19.addGeometry(Part.LineSegment(V(104, 35, 0), V(104, 5, 0)), False)
sketch19.addGeometry(Part.LineSegment(V(104, 5, 0), V(90, 5, 0)), False)
sketch19.addGeometry(Part.LineSegment(V(90, 5, 0), V(90, 35, 0)), False)
sketch19.addGeometry(Part.LineSegment(V(90, 35, 0), V(104, 35, 0)), False)
sketch19.addConstraint(Sketcher.Constraint("Coincident", 0, 2, 1, 1))
sketch19.addConstraint(Sketcher.Constraint("Coincident", 1, 2, 2, 1))
sketch19.addConstraint(Sketcher.Constraint("Coincident", 2, 2, 3, 1))
sketch19.addConstraint(Sketcher.Constraint("Coincident", 3, 2, 0, 1))
sketch19.addConstraint(Sketcher.Constraint("Vertical", 0))
sketch19.addConstraint(Sketcher.Constraint("Horizontal", 1))
sketch19.addConstraint(Sketcher.Constraint("Vertical", 2))
sketch19.addConstraint(Sketcher.Constraint("Horizontal", 3))
sketch19.addConstraint(Sketcher.Constraint("DistanceY", 0, 2, 0, 1, Q("30 mm")))
sketch19.addConstraint(Sketcher.Constraint("DistanceY", -1, 1, 0, 2, Q("5 mm")))
sketch19.addConstraint(Sketcher.Constraint("DistanceX", 1, 2, 1, 1, Q("14.65 mm")))
sketch19.addConstraint(Sketcher.Constraint("DistanceX", -1, 1, 0, 2, Q("104.28 mm")))
pocket15 = body.newObject("PartDesign::Pocket", "Pocket014")
pocket15.Profile = sketch19
pocket15.Type = "UpToFirst"
pocket15.Reversed = True
doc.recompute()

fillet5 = body.newObject("PartDesign::Fillet", "Fillet004")
fillet5.Base = (pocket15, edges_at(pocket15, [
    (89.63, 5, 2.5),
    (89.63, 35, 2.5),
    (104.28, 35, 2.5),
    (104.28, 5, 2.5),
]))
fillet5.Radius = 1.25

sketch20 = body.newObject("Sketcher::SketchObject", "Sketch019")
sketch20.AttachmentSupport = (doc.getObject("XY_Plane"), [""])
sketch20.MapMode = "FlatFace"
sketch20.AttachmentOffset = App.Placement(V(0, 0, 5), App.Rotation())
sketch20.addGeometry(Part.LineSegment(V(18, 35, 0), V(18, 5, 0)), False)
sketch20.addGeometry(Part.LineSegment(V(18, 5, 0), V(30, 5, 0)), False)
sketch20.addGeometry(Part.LineSegment(V(30, 5, 0), V(30, 35, 0)), False)
sketch20.addGeometry(Part.LineSegment(V(30, 35, 0), V(18, 35, 0)), False)
sketch20.addConstraint(Sketcher.Constraint("Coincident", 0, 2, 1, 1))
sketch20.addConstraint(Sketcher.Constraint("Coincident", 1, 2, 2, 1))
sketch20.addConstraint(Sketcher.Constraint("Coincident", 2, 2, 3, 1))
sketch20.addConstraint(Sketcher.Constraint("Coincident", 3, 2, 0, 1))
sketch20.addConstraint(Sketcher.Constraint("Vertical", 0))
sketch20.addConstraint(Sketcher.Constraint("Horizontal", 1))
sketch20.addConstraint(Sketcher.Constraint("Vertical", 2))
sketch20.addConstraint(Sketcher.Constraint("Horizontal", 3))
sketch20.addConstraint(Sketcher.Constraint("DistanceY", 0, 2, 0, 1, Q("30 mm")))
sketch20.addConstraint(Sketcher.Constraint("DistanceX", -1, 1, 0, 2, Q("18 mm")))
sketch20.addConstraint(Sketcher.Constraint("DistanceY", -1, 1, 0, 2, Q("5 mm")))
sketch20.addConstraint(Sketcher.Constraint("DistanceX", 1, 1, 1, 2, Q("12.14 mm")))
pocket16 = body.newObject("PartDesign::Pocket", "Pocket015")
pocket16.Profile = sketch20
pocket16.Type = "UpToFirst"
doc.recompute()

fillet6 = body.newObject("PartDesign::Fillet", "Fillet005")
fillet6.Base = (pocket16, edges_at(pocket16, [
    (18, 5, 2.5),
    (18, 35, 2.5),
    (30.14, 35, 2.5),
    (30.14, 5, 2.5),
]))
fillet6.Radius = 1.25

doc.recompute()
